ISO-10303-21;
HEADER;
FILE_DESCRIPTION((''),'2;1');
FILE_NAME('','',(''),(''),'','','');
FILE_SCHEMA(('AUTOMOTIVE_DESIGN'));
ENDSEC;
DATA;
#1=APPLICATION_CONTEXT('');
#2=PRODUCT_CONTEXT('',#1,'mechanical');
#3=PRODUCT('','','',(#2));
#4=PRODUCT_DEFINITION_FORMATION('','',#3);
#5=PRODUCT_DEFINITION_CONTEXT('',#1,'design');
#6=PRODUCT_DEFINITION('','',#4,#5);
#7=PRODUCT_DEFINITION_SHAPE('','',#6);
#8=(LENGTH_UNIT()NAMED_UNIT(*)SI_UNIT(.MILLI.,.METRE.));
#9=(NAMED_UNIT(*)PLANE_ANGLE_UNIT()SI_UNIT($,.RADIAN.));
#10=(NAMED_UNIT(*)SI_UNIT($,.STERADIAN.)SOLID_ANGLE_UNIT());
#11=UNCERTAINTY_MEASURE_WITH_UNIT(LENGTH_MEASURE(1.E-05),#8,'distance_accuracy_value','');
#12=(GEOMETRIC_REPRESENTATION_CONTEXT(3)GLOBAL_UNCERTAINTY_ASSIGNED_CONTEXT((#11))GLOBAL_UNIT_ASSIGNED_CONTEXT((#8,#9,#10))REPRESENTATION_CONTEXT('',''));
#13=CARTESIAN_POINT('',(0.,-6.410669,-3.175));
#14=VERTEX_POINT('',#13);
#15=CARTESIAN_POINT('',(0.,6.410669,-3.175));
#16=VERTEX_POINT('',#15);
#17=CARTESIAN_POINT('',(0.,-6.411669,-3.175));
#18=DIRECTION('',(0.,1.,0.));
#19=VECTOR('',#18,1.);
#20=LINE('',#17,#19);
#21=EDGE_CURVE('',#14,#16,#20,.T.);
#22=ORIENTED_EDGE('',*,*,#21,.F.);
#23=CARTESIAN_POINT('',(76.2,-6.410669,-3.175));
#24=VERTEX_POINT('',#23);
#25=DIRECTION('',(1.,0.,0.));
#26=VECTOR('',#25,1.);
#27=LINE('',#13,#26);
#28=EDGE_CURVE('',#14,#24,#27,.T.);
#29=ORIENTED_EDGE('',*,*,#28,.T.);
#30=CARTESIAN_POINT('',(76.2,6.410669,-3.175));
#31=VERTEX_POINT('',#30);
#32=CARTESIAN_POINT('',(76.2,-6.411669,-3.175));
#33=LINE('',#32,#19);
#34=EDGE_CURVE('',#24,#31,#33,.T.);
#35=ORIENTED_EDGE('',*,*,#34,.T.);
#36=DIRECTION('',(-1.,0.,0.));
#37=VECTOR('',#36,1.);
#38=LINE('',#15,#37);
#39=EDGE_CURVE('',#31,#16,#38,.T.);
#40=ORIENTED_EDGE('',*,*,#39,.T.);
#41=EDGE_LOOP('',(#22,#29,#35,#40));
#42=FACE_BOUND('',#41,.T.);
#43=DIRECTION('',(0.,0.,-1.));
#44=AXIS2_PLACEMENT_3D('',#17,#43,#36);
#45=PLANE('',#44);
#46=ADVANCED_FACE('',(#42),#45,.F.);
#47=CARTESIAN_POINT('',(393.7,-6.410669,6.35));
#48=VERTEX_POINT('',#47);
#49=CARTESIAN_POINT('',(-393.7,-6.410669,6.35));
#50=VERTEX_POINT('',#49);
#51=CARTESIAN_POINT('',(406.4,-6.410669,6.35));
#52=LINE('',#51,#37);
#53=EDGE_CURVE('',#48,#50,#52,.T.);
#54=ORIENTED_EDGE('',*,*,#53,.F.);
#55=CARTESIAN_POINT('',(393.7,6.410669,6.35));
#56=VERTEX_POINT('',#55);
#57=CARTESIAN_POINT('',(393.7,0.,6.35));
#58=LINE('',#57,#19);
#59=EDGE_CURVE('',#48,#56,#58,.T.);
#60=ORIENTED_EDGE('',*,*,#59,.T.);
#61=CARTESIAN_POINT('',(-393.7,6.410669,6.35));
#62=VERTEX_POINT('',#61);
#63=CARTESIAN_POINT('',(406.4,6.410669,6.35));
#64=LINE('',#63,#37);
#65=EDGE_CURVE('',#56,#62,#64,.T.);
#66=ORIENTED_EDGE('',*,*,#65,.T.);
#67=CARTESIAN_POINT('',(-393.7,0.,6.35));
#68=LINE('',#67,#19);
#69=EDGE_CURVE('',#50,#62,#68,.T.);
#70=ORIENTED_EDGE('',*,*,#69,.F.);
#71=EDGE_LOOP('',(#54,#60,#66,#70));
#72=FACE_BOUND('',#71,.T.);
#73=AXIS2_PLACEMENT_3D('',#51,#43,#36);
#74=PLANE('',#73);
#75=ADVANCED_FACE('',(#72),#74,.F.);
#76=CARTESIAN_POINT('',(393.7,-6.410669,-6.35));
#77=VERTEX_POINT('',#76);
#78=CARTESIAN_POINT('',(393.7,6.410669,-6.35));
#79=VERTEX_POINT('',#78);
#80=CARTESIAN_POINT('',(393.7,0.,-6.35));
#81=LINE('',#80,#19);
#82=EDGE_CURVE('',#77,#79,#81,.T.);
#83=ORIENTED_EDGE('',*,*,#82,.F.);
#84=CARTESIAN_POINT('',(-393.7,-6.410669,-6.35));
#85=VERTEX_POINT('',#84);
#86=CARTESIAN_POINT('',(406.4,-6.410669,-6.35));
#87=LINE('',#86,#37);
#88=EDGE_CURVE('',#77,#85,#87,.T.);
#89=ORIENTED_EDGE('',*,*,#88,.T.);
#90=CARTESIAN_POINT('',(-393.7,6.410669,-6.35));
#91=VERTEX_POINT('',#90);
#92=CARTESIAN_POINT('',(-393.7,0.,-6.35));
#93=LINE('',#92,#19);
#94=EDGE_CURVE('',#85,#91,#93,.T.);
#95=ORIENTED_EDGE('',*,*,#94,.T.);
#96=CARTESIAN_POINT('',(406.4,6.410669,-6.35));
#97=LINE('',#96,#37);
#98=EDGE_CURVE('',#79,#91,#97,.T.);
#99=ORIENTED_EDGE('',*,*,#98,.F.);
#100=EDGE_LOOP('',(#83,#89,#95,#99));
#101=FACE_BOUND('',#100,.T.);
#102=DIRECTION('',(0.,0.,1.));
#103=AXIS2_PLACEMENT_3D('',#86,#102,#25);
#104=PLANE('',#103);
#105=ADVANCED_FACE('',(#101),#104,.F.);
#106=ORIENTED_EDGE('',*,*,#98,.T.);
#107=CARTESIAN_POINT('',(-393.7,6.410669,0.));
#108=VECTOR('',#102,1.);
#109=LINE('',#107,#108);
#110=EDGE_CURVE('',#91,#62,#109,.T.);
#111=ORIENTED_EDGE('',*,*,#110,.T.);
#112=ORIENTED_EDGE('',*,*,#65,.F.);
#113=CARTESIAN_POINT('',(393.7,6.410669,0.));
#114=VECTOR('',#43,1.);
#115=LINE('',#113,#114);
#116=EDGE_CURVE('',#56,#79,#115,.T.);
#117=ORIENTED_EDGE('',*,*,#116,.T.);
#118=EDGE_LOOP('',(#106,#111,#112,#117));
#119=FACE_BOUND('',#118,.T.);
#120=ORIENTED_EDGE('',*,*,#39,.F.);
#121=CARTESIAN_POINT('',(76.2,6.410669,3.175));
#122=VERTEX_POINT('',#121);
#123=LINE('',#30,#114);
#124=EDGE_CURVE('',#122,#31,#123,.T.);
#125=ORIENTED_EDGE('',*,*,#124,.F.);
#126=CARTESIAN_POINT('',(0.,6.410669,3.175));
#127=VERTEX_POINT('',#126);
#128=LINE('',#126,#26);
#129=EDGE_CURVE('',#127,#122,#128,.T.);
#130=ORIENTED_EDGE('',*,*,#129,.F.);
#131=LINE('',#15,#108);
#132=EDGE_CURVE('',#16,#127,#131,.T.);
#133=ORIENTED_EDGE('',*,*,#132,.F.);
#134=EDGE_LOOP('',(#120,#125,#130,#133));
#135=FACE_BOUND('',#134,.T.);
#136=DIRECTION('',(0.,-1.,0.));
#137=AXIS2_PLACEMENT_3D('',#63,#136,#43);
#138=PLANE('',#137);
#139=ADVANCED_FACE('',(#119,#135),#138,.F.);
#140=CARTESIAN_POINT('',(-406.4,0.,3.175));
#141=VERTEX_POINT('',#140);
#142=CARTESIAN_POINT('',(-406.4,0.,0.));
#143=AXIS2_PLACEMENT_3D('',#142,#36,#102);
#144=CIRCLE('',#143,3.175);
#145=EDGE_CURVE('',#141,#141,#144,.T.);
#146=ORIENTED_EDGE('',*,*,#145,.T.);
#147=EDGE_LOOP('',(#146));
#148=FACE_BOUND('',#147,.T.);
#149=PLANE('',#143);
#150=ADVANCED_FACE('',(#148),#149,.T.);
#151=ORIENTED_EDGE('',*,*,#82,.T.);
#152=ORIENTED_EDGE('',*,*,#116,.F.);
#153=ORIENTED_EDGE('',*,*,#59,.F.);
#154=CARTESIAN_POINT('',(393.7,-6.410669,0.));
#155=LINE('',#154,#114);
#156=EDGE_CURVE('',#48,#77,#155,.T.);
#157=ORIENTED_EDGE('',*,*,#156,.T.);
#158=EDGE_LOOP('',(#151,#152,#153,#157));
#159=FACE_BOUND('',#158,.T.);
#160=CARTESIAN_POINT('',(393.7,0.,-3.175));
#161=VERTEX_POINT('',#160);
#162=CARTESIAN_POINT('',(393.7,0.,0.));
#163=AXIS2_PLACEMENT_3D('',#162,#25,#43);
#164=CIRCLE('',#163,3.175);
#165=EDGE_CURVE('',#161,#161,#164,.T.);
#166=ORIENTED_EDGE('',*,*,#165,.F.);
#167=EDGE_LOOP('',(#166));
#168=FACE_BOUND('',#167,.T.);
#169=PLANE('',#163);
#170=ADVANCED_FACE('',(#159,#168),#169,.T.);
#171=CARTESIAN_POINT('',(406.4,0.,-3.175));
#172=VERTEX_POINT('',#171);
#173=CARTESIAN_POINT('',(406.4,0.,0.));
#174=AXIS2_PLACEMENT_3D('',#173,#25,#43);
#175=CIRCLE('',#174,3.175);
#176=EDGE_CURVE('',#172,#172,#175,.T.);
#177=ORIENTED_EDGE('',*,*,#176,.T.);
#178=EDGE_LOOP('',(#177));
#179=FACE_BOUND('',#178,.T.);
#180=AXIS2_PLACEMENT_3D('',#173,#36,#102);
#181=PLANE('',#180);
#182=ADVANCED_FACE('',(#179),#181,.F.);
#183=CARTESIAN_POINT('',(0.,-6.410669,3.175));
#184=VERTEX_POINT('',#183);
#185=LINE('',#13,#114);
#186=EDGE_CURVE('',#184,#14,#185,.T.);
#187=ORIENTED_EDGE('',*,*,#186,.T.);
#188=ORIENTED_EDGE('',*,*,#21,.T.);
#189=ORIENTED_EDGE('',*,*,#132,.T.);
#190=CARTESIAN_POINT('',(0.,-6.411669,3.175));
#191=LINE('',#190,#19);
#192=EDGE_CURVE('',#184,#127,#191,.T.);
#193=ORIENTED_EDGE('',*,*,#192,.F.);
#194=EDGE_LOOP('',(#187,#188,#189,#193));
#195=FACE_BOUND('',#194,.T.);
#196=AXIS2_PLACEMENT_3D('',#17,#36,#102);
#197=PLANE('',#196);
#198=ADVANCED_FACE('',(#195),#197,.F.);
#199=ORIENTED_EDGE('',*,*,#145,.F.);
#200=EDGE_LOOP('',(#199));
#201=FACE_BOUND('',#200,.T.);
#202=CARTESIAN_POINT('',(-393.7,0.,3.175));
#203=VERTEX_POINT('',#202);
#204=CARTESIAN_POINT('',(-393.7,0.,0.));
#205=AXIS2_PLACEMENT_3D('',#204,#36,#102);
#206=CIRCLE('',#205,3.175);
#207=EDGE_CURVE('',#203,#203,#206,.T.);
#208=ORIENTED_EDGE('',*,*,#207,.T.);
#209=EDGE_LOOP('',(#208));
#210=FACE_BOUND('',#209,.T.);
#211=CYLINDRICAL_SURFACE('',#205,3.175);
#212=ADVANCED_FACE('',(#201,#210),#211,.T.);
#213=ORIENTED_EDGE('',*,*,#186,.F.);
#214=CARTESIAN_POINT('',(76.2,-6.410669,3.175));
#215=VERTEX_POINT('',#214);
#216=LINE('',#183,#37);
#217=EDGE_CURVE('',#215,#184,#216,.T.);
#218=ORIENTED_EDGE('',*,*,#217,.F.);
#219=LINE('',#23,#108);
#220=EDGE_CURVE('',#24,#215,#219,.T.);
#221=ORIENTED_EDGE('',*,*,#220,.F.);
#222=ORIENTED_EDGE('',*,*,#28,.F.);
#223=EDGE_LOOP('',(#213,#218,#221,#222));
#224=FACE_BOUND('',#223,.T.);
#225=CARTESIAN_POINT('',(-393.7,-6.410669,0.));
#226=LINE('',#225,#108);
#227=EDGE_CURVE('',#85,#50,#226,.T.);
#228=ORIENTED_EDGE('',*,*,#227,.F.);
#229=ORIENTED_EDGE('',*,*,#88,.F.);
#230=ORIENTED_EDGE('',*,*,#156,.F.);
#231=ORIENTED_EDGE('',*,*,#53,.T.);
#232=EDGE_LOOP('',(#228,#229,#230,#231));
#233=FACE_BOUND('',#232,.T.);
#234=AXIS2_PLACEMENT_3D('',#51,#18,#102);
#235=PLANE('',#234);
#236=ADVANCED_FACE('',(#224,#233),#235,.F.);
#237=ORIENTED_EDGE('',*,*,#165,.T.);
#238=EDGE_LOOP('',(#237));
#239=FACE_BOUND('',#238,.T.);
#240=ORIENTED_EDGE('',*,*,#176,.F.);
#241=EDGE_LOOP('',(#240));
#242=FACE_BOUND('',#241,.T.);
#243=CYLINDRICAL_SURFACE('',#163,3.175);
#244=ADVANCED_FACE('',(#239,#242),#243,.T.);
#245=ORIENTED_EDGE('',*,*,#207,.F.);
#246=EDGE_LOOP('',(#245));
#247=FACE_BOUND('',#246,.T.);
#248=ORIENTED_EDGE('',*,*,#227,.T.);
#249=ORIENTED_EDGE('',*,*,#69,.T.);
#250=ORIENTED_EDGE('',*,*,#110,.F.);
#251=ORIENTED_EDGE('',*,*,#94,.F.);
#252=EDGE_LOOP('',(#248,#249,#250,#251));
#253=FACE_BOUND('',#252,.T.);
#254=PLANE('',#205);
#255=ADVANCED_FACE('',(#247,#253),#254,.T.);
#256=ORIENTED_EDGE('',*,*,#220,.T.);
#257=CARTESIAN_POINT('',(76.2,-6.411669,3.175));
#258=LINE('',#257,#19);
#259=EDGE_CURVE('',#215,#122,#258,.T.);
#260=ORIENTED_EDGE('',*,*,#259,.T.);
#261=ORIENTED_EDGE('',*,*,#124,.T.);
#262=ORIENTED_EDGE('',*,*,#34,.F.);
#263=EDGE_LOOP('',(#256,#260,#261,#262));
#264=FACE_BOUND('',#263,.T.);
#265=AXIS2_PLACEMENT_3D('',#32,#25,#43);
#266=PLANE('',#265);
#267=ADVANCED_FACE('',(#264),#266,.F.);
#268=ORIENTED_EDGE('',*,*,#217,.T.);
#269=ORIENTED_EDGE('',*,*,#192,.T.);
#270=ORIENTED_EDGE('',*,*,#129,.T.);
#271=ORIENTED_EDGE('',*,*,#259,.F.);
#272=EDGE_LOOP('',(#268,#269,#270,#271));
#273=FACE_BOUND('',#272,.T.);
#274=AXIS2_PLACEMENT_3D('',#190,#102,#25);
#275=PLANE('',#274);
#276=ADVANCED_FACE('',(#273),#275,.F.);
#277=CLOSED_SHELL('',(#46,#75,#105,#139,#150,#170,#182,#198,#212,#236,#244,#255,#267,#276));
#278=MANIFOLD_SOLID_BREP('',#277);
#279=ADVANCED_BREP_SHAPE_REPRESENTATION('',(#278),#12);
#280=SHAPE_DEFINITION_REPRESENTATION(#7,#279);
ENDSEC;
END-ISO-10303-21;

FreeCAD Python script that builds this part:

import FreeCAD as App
import Part
import Sketcher
from FreeCAD import Vector
Q = App.Units.Quantity

doc = App.newDocument("Part")
params = doc.addObject("Spreadsheet::Sheet", "Params")
for row, (alias, value) in enumerate([
    ("sketch1_height", "0.5 in"),
    ("pad1_length", "32 in"),
    ("sketch2_diameter", "0.25 in"),
    ("sketch2_height", "0.5 in"),
    ("pocket1_length", "0.5 in"),
    ("sketch3_diameter", "0.25 in"),
    ("sketch3_height", "0.5 in"),
    ("pocket2_length", "0.5 in"),
    ("sketch4_width", "3 in"),
    ("sketch4_height", "0.25 in"),
], start=1):
    params.set(f"A{row}", alias)
    params.set(f"B{row}", "=" + value)
    params.setAlias(f"B{row}", alias)

body = doc.addObject("PartDesign::Body", "Body")

# Sketch on YZ plane
sketch1 = body.newObject("Sketcher::SketchObject", "Sketch")
sketch1.AttachmentSupport = (doc.getObject("YZ_Plane"), [""])
sketch1.MapMode = "FlatFace"
sketch1.addGeometry([
    Part.LineSegment(Vector(6, 6, 0), Vector(-6, 6, 0)),
    Part.LineSegment(Vector(-6, 6, 0), Vector(-6, -6, 0)),
    Part.LineSegment(Vector(-6, -6, 0), Vector(6, -6, 0)),
    Part.LineSegment(Vector(6, -6, 0), Vector(6, 6, 0)),
], False)
sketch1.addConstraint([
    Sketcher.Constraint("Coincident", 0, 2, 1, 1),
    Sketcher.Constraint("Coincident", 1, 2, 2, 1),
    Sketcher.Constraint("Coincident", 2, 2, 3, 1),
    Sketcher.Constraint("Coincident", 3, 2, 0, 1),
    Sketcher.Constraint("Horizontal", 0),
    Sketcher.Constraint("Vertical", 1),
    Sketcher.Constraint("Horizontal", 2),
    Sketcher.Constraint("Vertical", 3),
    Sketcher.Constraint("Symmetric", 0, 2, 2, 2, -1, 1),
    Sketcher.Constraint("DistanceY", 1, 2, 1, 1, Q("0.5 in")),
    Sketcher.Constraint("DistanceX", 0, 2, 0, 1, 12.821338),
])
sketch1.setExpression("Constraints[9]", "Params.sketch1_height")
pad1 = body.newObject("PartDesign::Pad", "Pad")
pad1.Profile = sketch1
pad1.setExpression("Length", "Params.pad1_length")
pad1.Midplane = True

# Sketch on YZ plane
sketch2 = body.newObject("Sketcher::SketchObject", "Sketch001")
sketch2.AttachmentSupport = (doc.getObject("YZ_Plane"), [""])
sketch2.MapMode = "FlatFace"
sketch2.AttachmentOffset = App.Placement(Vector(0, 0, 16 * 25.4), App.Rotation())
sketch2.addGeometry([
    Part.LineSegment(Vector(6.4, 6.3, 0), Vector(-6.4, 6.3, 0)),  # 0
    Part.LineSegment(Vector(-6.4, 6.3, 0), Vector(-6.4, -6.3, 0)),  # 1
    Part.LineSegment(Vector(-6.4, -6.3, 0), Vector(6.4, -6.3, 0)),  # 2
    Part.LineSegment(Vector(6.4, -6.3, 0), Vector(6.4, 6.3, 0)),  # 3
    Part.Circle(Vector(0, 0, 0), Vector(0, 0, 1), 3.2),  # 4
], False)
sketch2.addConstraint([
    Sketcher.Constraint("Coincident", 0, 2, 1, 1),
    Sketcher.Constraint("Coincident", 1, 2, 2, 1),
    Sketcher.Constraint("Coincident", 2, 2, 3, 1),
    Sketcher.Constraint("Coincident", 3, 2, 0, 1),
    Sketcher.Constraint("Horizontal", 0),
    Sketcher.Constraint("Vertical", 1),
    Sketcher.Constraint("Horizontal", 2),
    Sketcher.Constraint("Vertical", 3),
    Sketcher.Constraint("Coincident", 4, 3, -1, 1),
    Sketcher.Constraint("Symmetric", 0, 2, 2, 2, -1, 1),
    Sketcher.Constraint("Diameter", 4, Q("0.25 in")),
    Sketcher.Constraint("DistanceY", 1, 2, 1, 1, Q("0.5 in")),
    Sketcher.Constraint("DistanceX", 0, 2, 0, 1, 12.821338),
])
sketch2.setExpression("Constraints[10]", "Params.sketch2_diameter")
sketch2.setExpression("Constraints[11]", "Params.sketch2_height")
pocket1 = body.newObject("PartDesign::Pocket", "Pocket")
pocket1.Profile = sketch2
pocket1.setExpression("Length", "Params.pocket1_length")

# Sketch on YZ plane
sketch3 = body.newObject("Sketcher::SketchObject", "Sketch002")
sketch3.AttachmentSupport = (doc.getObject("YZ_Plane"), [""])
sketch3.MapMode = "FlatFace"
sketch3.AttachmentOffset = App.Placement(Vector(0, 0, -16 * 25.4), App.Rotation())
sketch3.addGeometry([
    Part.LineSegment(Vector(6.4, -6.3, 0), Vector(-6.4, -6.3, 0)),  # 0
    Part.LineSegment(Vector(-6.4, -6.3, 0), Vector(-6.4, 6.3, 0)),  # 1
    Part.LineSegment(Vector(-6.4, 6.3, 0), Vector(6.4, 6.3, 0)),  # 2
    Part.LineSegment(Vector(6.4, 6.3, 0), Vector(6.4, -6.3, 0)),  # 3
    Part.Circle(Vector(0, 0, 0), Vector(0, 0, 1), 3.2),  # 4
], False)
sketch3.addConstraint([
    Sketcher.Constraint("Coincident", 0, 2, 1, 1),
    Sketcher.Constraint("Coincident", 1, 2, 2, 1),
    Sketcher.Constraint("Coincident", 2, 2, 3, 1),
    Sketcher.Constraint("Coincident", 3, 2, 0, 1),
    Sketcher.Constraint("Horizontal", 0),
    Sketcher.Constraint("Vertical", 1),
    Sketcher.Constraint("Horizontal", 2),
    Sketcher.Constraint("Vertical", 3),
    Sketcher.Constraint("Coincident", 4, 3, -1, 1),
    Sketcher.Constraint("Symmetric", 0, 2, 2, 2, -1, 1),
    Sketcher.Constraint("Diameter", 4, Q("0.25 in")),
    Sketcher.Constraint("DistanceY", 1, 1, 1, 2, Q("0.5 in")),
    Sketcher.Constraint("DistanceX", 0, 2, 0, 1, 12.821338),
])
sketch3.setExpression("Constraints[10]", "Params.sketch3_diameter")
sketch3.setExpression("Constraints[11]", "Params.sketch3_height")
pocket2 = body.newObject("PartDesign::Pocket", "Pocket001")
pocket2.Profile = sketch3
pocket2.setExpression("Length", "Params.pocket2_length")
pocket2.Reversed = True

# Sketch on XZ plane
sketch4 = body.newObject("Sketcher::SketchObject", "Sketch003")
sketch4.AttachmentSupport = (doc.getObject("XZ_Plane"), [""])
sketch4.MapMode = "FlatFace"
sketch4.AttachmentOffset = App.Placement(Vector(0, 0, -6.410669), App.Rotation())
sketch4.addGeometry([
    Part.LineSegment(Vector(0, -3, 0), Vector(0, 3, 0)),
    Part.LineSegment(Vector(0, 3, 0), Vector(76, 3, 0)),
    Part.LineSegment(Vector(76, 3, 0), Vector(76, -3, 0)),
    Part.LineSegment(Vector(76, -3, 0), Vector(0, -3, 0)),
], False)
sketch4.addConstraint([
    Sketcher.Constraint("Coincident", 0, 2, 1, 1),
    Sketcher.Constraint("Coincident", 1, 2, 2, 1),
    Sketcher.Constraint("Coincident", 2, 2, 3, 1),
    Sketcher.Constraint("Coincident", 3, 2, 0, 1),
    Sketcher.Constraint("Vertical", 0),
    Sketcher.Constraint("Horizontal", 1),
    Sketcher.Constraint("Vertical", 2),
    Sketcher.Constraint("Horizontal", 3),
    Sketcher.Constraint("Symmetric", 0, 2, 3, 2, -1, 1),
    Sketcher.Constraint("DistanceX", 1, 1, 1, 2, Q("3 in")),
    Sketcher.Constraint("DistanceY", 0, 1, 0, 2, Q("0.25 in")),
])
sketch4.setExpression("Constraints[9]", "Params.sketch4_width")
sketch4.setExpression("Constraints[10]", "Params.sketch4_height")
pocket3 = body.newObject("PartDesign::Pocket", "Pocket002")
pocket3.Profile = sketch4
pocket3.Type = "UpToFirst"
pocket3.Reversed = True

doc.recompute()
